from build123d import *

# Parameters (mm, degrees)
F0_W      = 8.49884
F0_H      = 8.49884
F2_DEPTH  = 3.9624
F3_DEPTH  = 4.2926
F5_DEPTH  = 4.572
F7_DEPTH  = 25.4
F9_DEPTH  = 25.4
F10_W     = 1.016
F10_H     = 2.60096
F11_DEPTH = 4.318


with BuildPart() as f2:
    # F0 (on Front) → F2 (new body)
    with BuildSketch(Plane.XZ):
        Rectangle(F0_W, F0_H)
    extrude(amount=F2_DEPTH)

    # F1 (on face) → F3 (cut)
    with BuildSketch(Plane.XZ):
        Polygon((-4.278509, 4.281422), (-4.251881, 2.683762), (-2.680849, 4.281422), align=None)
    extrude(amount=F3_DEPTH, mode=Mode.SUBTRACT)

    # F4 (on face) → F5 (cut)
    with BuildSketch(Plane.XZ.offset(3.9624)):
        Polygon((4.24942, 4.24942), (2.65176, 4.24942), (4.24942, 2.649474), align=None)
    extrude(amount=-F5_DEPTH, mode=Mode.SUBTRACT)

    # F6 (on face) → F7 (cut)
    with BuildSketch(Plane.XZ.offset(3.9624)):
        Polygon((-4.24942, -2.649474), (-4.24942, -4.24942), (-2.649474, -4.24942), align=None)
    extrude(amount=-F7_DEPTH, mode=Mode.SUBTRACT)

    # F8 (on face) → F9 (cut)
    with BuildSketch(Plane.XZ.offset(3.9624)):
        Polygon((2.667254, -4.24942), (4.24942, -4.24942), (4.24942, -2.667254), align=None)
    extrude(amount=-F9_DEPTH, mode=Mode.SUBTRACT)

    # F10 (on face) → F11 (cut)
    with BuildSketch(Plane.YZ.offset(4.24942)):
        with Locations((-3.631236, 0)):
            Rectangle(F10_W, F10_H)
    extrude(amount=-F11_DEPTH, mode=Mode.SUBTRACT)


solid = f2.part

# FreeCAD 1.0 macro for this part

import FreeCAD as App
import Part
import Sketcher
from FreeCAD import Vector
Q = App.Units.Quantity


def add_polygon(sketch, points):
    """Adds a closed chain of lines whose ends are joined by coincident constraints."""
    first, n = sketch.GeometryCount, len(points)
    for a, b in zip(points, points[1:] + points[:1]):
        sketch.addGeometry(Part.LineSegment(App.Vector(*a, 0), App.Vector(*b, 0)), False)
    for i in range(n):
        sketch.addConstraint(Sketcher.Constraint("Coincident", first + i, 2, first + (i + 1) % n, 1))

doc = App.newDocument("Part")
params = doc.addObject("Spreadsheet::Sheet", "Params")
for row, (alias, value) in enumerate([
    ("pad1_length", "0.156 in"),
    ("pocket1_length", "0.169 in"),
    ("pocket2_length", "0.18 in"),
    ("pocket3_length", "1 in"),
    ("pocket4_length", "1 in"),
    ("sketch6_width", "0.04 in"),
    ("pocket5_length", "0.17 in"),
], start=1):
    params.set(f"A{row}", alias)
    params.set(f"B{row}", "=" + value)
    params.setAlias(f"B{row}", alias)

body = doc.addObject("PartDesign::Body", "Body")

sketch1 = doc.addObject("Sketcher::SketchObject", "Sketch")
body.addObject(sketch1)
sketch1.AttachmentSupport = (doc.XZ_Plane, [""])
sketch1.MapMode = "FlatFace"
add_polygon(sketch1, [(-4, 4), (-4, -4), (4, -4), (4, 4)])
sketch1.addConstraint([
    Sketcher.Constraint("Vertical", 0),
    Sketcher.Constraint("Horizontal", 1),
    Sketcher.Constraint("Vertical", 2),
    Sketcher.Constraint("Horizontal", 3),
    Sketcher.Constraint("Symmetric", 0, 2, 2, 2, -1, 1),
    Sketcher.Constraint("Equal", 3, 0),
    Sketcher.Constraint("DistanceX", 1, 1, 1, 2, Q("0.3346 in")),
])
pad1 = doc.addObject("PartDesign::Pad", "Pad")
body.addObject(pad1)
pad1.Profile = sketch1
pad1.setExpression("Length", "Params.pad1_length")

sketch2 = doc.addObject("Sketcher::SketchObject", "Sketch001")
body.addObject(sketch2)
sketch2.AttachmentSupport = (doc.XZ_Plane, [""])
sketch2.MapMode = "FlatFace"
add_polygon(sketch2, [(-4.278509, 4.281422), (-4.251881, 2.683762), (-2.680849, 4.281422)])
sketch2.addConstraint([
    Sketcher.Constraint("Horizontal", 2),
    Sketcher.Constraint("DistanceX", 2, 2, 2, 1, Q("0.0629 in")),
    Sketcher.Constraint("DistanceY", 0, 2, 1, 2, Q("0.0629 in")),
    Sketcher.Constraint("Distance", 0, Q("1.597882 mm")),
    Sketcher.Constraint("DistanceX", 0, 2, -1, 1, Q("4.251881 mm")),
    Sketcher.Constraint("DistanceY", -1, 1, 0, 2, Q("2.683762 mm")),
])
pocket1 = doc.addObject("PartDesign::Pocket", "Pocket")
body.addObject(pocket1)
pocket1.Profile = sketch2
pocket1.setExpression("Length", "Params.pocket1_length")
pocket1.Reversed = True

sketch3 = doc.addObject("Sketcher::SketchObject", "Sketch002")
body.addObject(sketch3)
sketch3.AttachmentSupport = (doc.XZ_Plane, [""])
sketch3.MapMode = "FlatFace"
sketch3.AttachmentOffset = App.Placement(Vector(0, 0, 0.156 * 25.4), App.Rotation())
add_polygon(sketch3, [(4.2, 4.2), (2.7, 4.2), (4.2, 2.6)])
sketch3.addConstraint([
    Sketcher.Constraint("Horizontal", 0),
    Sketcher.Constraint("Vertical", 2),
    Sketcher.Constraint("DistanceX", 0, 2, 0, 1, Q("0.0629 in")),
    Sketcher.Constraint("DistanceX", -1, 1, 0, 2, Q("0.1044 in")),
    Sketcher.Constraint("DistanceY", -1, 1, 0, 2, Q("0.1673 in")),
    Sketcher.Constraint("Distance", 1, Q("2.261049 mm")),
])
pocket2 = doc.addObject("PartDesign::Pocket", "Pocket001")
body.addObject(pocket2)
pocket2.Profile = sketch3
pocket2.setExpression("Length", "Params.pocket2_length")

sketch4 = doc.addObject("Sketcher::SketchObject", "Sketch003")
body.addObject(sketch4)
sketch4.AttachmentSupport = (doc.XZ_Plane, [""])
sketch4.MapMode = "FlatFace"
sketch4.AttachmentOffset = App.Placement(Vector(0, 0, 0.156 * 25.4), App.Rotation())
add_polygon(sketch4, [(-4.2, -2.6), (-4.2, -4.2), (-2.6, -4.2)])
sketch4.addConstraint([
    Sketcher.Constraint("Vertical", 0),
    Sketcher.Constraint("Horizontal", 1),
    Sketcher.Constraint("Equal", 1, 0),
    Sketcher.Constraint("DistanceX", 0, 2, -1, 1, Q("0.1673 in")),
    Sketcher.Constraint("DistanceY", 0, 2, -1, 1, Q("0.1673 in")),
    Sketcher.Constraint("DistanceX", 1, 1, 1, 2, Q("1.599946 mm")),
])
pocket3 = doc.addObject("PartDesign::Pocket", "Pocket002")
body.addObject(pocket3)
pocket3.Profile = sketch4
pocket3.setExpression("Length", "Params.pocket3_length")

sketch5 = doc.addObject("Sketcher::SketchObject", "Sketch004")
body.addObject(sketch5)
sketch5.AttachmentSupport = (doc.XZ_Plane, [""])
sketch5.MapMode = "FlatFace"
sketch5.AttachmentOffset = App.Placement(Vector(0, 0, 0.156 * 25.4), App.Rotation())
add_polygon(sketch5, [(2.7, -4.2), (4.2, -4.2), (4.2, -2.7)])
sketch5.addConstraint([
    Sketcher.Constraint("Horizontal", 0),
    Sketcher.Constraint("Vertical", 1),
    Sketcher.Constraint("Equal", 0, 1),
    Sketcher.Constraint("DistanceX", -1, 1, 0, 2, Q("0.1673 in")),
    Sketcher.Constraint("DistanceY", 0, 2, -1, 1, Q("0.1673 in")),
    Sketcher.Constraint("Distance", 2, Q("2.237521 mm")),
])
pocket4 = doc.addObject("PartDesign::Pocket", "Pocket003")
body.addObject(pocket4)
pocket4.Profile = sketch5
pocket4.setExpression("Length", "Params.pocket4_length")

sketch6 = doc.addObject("Sketcher::SketchObject", "Sketch005")
body.addObject(sketch6)
sketch6.AttachmentSupport = (doc.YZ_Plane, [""])
sketch6.MapMode = "FlatFace"
sketch6.AttachmentOffset = App.Placement(Vector(0, 0, 0.1673 * 25.4), App.Rotation())
add_polygon(sketch6, [(-4.1, 1.3), (-4.1, -1.3), (-3.1, -1.3), (-3.1, 1.3)])
sketch6.addConstraint([
    Sketcher.Constraint("Vertical", 0),
    Sketcher.Constraint("Horizontal", 1),
    Sketcher.Constraint("Vertical", 2),
    Sketcher.Constraint("Horizontal", 3),
    Sketcher.Constraint("DistanceX", 1, 1, 1, 2, Q("0.04 in")),
    Sketcher.Constraint("DistanceY", 0, 2, 0, 1, Q("0.1024 in")),
    Sketcher.Constraint("DistanceY", 0, 2, -1, 1, Q("0.0512 in")),
    Sketcher.Constraint("DistanceX", 0, 2, -1, 1, Q("4.139236 mm")),
])
sketch6.setExpression("Constraints[8]", "Params.sketch6_width")
pocket5 = doc.addObject("PartDesign::Pocket", "Pocket004")
body.addObject(pocket5)
pocket5.Profile = sketch6
pocket5.setExpression("Length", "Params.pocket5_length")

doc.recompute()
